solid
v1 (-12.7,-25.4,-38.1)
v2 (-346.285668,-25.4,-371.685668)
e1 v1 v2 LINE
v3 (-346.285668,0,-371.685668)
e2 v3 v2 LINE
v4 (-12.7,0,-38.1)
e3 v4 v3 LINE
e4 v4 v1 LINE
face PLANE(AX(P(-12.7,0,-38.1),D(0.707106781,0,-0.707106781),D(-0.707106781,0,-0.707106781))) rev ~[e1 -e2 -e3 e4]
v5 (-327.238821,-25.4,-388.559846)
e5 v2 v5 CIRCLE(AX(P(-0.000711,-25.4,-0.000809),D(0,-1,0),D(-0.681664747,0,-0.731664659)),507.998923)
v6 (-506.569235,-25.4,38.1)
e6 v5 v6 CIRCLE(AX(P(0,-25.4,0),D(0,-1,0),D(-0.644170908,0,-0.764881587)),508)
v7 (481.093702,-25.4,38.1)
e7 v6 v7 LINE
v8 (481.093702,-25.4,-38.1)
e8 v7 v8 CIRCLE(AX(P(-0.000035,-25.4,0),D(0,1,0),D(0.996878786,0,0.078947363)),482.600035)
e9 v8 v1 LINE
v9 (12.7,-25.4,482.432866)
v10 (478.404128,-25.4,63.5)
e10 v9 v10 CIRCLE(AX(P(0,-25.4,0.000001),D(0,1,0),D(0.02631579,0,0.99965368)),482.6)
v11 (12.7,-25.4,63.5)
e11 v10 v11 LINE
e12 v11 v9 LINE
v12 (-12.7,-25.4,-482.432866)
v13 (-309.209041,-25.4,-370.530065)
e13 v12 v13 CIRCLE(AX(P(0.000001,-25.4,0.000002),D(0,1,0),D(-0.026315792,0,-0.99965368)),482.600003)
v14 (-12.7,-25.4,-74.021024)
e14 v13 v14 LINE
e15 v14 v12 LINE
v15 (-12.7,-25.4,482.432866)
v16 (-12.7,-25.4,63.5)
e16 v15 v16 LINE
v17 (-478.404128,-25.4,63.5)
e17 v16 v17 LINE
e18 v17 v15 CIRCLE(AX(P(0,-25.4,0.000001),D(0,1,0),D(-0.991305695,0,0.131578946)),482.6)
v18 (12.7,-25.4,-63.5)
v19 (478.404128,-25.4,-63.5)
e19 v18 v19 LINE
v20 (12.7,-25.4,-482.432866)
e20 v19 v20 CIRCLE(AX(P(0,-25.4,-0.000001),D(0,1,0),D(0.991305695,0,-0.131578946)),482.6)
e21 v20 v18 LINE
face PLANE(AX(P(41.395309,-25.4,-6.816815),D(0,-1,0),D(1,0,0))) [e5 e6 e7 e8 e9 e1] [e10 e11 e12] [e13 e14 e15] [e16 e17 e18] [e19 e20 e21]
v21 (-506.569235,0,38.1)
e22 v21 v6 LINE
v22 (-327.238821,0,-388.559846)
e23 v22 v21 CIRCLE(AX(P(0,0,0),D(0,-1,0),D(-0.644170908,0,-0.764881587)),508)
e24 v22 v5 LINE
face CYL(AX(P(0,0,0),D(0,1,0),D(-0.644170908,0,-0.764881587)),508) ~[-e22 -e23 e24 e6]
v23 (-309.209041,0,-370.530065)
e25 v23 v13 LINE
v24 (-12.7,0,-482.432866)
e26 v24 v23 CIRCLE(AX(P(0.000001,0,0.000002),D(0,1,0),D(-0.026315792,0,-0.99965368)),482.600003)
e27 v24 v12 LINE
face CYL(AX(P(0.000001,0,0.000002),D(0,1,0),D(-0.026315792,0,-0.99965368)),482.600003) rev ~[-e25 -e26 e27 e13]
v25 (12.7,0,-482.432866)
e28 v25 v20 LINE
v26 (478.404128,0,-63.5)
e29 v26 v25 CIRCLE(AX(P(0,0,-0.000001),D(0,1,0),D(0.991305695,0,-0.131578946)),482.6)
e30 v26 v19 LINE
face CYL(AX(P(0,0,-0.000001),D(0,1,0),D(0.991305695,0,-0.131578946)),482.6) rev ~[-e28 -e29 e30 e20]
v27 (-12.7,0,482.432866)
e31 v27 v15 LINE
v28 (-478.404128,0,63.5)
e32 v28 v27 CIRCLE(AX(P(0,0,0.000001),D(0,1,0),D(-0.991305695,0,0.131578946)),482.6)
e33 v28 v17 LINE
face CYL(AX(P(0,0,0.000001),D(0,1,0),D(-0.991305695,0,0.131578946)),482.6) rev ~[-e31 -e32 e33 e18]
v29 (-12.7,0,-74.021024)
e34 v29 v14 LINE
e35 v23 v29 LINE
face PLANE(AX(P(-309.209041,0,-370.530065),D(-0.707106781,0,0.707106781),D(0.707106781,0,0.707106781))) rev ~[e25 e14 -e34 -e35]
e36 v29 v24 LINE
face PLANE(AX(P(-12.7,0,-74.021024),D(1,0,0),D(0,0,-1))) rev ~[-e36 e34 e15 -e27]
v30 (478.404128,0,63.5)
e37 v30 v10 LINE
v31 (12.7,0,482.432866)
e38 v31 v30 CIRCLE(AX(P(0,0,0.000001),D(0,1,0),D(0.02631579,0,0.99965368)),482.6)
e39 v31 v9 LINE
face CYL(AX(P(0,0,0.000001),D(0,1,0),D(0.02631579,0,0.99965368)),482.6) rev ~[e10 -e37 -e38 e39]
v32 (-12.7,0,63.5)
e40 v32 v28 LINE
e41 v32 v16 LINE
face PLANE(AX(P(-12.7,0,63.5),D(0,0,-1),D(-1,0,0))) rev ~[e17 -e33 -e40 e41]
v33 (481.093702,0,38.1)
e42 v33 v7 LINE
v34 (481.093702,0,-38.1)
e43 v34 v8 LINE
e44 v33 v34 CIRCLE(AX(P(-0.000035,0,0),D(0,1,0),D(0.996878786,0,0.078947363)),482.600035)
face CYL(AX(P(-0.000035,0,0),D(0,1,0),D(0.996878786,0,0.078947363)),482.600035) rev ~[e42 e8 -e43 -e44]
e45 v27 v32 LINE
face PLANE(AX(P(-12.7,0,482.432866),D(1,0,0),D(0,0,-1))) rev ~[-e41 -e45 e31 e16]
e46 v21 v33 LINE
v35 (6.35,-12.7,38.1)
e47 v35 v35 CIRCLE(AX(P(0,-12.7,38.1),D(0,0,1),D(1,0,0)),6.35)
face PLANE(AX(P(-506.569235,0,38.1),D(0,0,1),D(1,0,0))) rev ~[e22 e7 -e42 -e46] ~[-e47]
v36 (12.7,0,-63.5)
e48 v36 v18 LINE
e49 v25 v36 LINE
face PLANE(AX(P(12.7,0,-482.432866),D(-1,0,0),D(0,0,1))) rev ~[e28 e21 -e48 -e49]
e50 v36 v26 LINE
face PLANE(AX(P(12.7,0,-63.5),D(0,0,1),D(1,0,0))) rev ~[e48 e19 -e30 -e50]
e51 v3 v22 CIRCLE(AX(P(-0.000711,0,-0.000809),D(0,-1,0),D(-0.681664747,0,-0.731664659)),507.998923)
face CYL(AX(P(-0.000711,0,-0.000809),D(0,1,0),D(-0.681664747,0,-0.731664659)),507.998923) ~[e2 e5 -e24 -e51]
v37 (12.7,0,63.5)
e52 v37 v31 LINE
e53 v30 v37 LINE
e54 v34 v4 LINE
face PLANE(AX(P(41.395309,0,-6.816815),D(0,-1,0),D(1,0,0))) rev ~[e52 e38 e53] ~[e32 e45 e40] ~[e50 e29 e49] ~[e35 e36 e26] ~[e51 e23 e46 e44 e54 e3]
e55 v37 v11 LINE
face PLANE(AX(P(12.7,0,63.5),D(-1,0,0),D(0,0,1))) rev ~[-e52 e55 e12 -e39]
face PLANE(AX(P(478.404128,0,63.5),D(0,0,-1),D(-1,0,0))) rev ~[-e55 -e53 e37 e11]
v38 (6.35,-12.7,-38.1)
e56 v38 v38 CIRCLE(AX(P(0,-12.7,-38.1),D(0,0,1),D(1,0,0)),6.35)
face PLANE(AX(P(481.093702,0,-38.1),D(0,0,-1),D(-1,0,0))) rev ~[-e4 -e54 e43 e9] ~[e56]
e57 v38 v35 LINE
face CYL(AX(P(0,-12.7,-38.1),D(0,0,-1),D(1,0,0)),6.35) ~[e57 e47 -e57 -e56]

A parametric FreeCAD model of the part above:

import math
import FreeCAD as App
import Part
import Sketcher
from FreeCAD import Vector
Q = App.Units.Quantity

doc = App.newDocument("Part")
body = doc.addObject("PartDesign::Body", "Body")

sketch1 = body.newObject("Sketcher::SketchObject", "Sketch")
sketch1.AttachmentSupport = (doc.getObject("XZ_Plane"), [""])
sketch1.MapMode = "FlatFace"
sketch1.addGeometry([
    Part.LineSegment(Vector(-12.7, -38.1, 0), Vector(-346.285668, -371.685668, 0)),
    Part.ArcOfCircle(Part.Circle(Vector(-0.000711, -0.000809, 0), Vector(0, 0, 1), 507.998923), math.radians(-132.97387), math.radians(-130.103539)),
    Part.ArcOfCircle(Part.Circle(Vector(0, 0, 0), Vector(0, 0, 1), 508), math.radians(-130.103541), math.radians(175.698778)),
    Part.LineSegment(Vector(-506.569235, 38.1, 0), Vector(481.093702, 38.1, 0)),
    Part.ArcOfCircle(Part.Circle(Vector(-0.000035, 0, 0), Vector(0, 0, 1), 482.600035), math.radians(-4.528063), math.radians(4.528063)),
    Part.LineSegment(Vector(481.093702, -38.1, 0), Vector(-12.7, -38.1, 0)),
    Part.ArcOfCircle(Part.Circle(Vector(0.000001, 0.000002, 0), Vector(0, 0, 1), 482.600003), math.radians(-129.845153), math.radians(-91.507958)),
    Part.LineSegment(Vector(-309.209041, -370.530065, 0), Vector(-12.7, -74.021024, 0)),
    Part.LineSegment(Vector(-12.7, -74.021024, 0), Vector(-12.7, -482.432866, 0)),
    Part.LineSegment(Vector(12.7, -63.5, 0), Vector(478.404128, -63.5, 0)),
    Part.ArcOfCircle(Part.Circle(Vector(0, -0.000001, 0), Vector(0, 0, 1), 482.6), math.radians(-88.492042), math.radians(-7.560843)),
    Part.LineSegment(Vector(12.7, -482.432866, 0), Vector(12.7, -63.5, 0)),
    Part.LineSegment(Vector(-12.7, 63.5, 0), Vector(-478.404128, 63.5, 0)),
    Part.ArcOfCircle(Part.Circle(Vector(0, 0.000001, 0), Vector(0, 0, 1), 482.6), math.radians(91.507958), math.radians(172.439157)),
    Part.LineSegment(Vector(-12.7, 482.432866, 0), Vector(-12.7, 63.5, 0)),
    Part.LineSegment(Vector(478.404128, 63.5, 0), Vector(12.7, 63.5, 0)),
    Part.LineSegment(Vector(12.7, 63.5, 0), Vector(12.7, 482.432866, 0)),
    Part.ArcOfCircle(Part.Circle(Vector(0, 0.000001, 0), Vector(0, 0, 1), 482.6), math.radians(7.560843), math.radians(88.492042)),
], False)
sketch1.addConstraint([
    Sketcher.Constraint("Coincident", 0, 2, 1, 1),
    Sketcher.Constraint("Coincident", 1, 2, 2, 1),
    Sketcher.Constraint("Coincident", 2, 2, 3, 1),
    Sketcher.Constraint("Coincident", 3, 2, 4, 2),
    Sketcher.Constraint("Coincident", 4, 1, 5, 1),
    Sketcher.Constraint("Coincident", 5, 2, 0, 1),
    Sketcher.Constraint("Coincident", 6, 1, 7, 1),
    Sketcher.Constraint("Coincident", 7, 2, 8, 1),
    Sketcher.Constraint("Coincident", 8, 2, 6, 2),
    Sketcher.Constraint("Coincident", 9, 2, 10, 2),
    Sketcher.Constraint("Coincident", 10, 1, 11, 1),
    Sketcher.Constraint("Coincident", 11, 2, 9, 1),
    Sketcher.Constraint("Coincident", 12, 2, 13, 2),
    Sketcher.Constraint("Coincident", 13, 1, 14, 1),
    Sketcher.Constraint("Coincident", 14, 2, 12, 1),
    Sketcher.Constraint("Coincident", 15, 2, 16, 1),
    Sketcher.Constraint("Coincident", 16, 2, 17, 2),
    Sketcher.Constraint("Coincident", 17, 1, 15, 1),
    Sketcher.Constraint("Horizontal", 3),
    Sketcher.Constraint("Horizontal", 5),
    Sketcher.Constraint("Vertical", 8),
    Sketcher.Constraint("Horizontal", 9),
    Sketcher.Constraint("Vertical", 11),
    Sketcher.Constraint("Horizontal", 12),
    Sketcher.Constraint("Vertical", 14),
    Sketcher.Constraint("Horizontal", 15),
    Sketcher.Constraint("Vertical", 16),
    Sketcher.Constraint("Coincident", 2, 3, -1, 1),
    Sketcher.Constraint("Coincident", 6, 3, -1, 1),
    Sketcher.Constraint("Coincident", 10, 3, -1, 1),
    Sketcher.Constraint("Coincident", 13, 3, -1, 1),
    Sketcher.Constraint("Coincident", 17, 3, -1, 1),
    Sketcher.Constraint("PointOnObject", 4, 3, -1),
    Sketcher.Constraint("Radius", 2, Q("20 in")),
    Sketcher.Constraint("Radius", 6, Q("19.0000001 in")),
    Sketcher.Constraint("Radius", 10, Q("19 in")),
    Sketcher.Constraint("Radius", 13, Q("19 in")),
    Sketcher.Constraint("Radius", 17, Q("19 in")),
    Sketcher.Constraint("DistanceY", 9, 2, 3, 2, Q("4 in")),
    Sketcher.Constraint("DistanceX", 7, 2, 11, 2, Q("1 in")),
    Sketcher.Constraint("DistanceX", 5, 2, 11, 2, Q("1 in")),
    Sketcher.Constraint("DistanceY", 11, 2, 5, 2, Q("1 in")),
    Sketcher.Constraint("DistanceY", 5, 2, 12, 2, Q("4 in")),
    Sketcher.Constraint("DistanceX", 14, 2, 15, 2, Q("1 in")),
    Sketcher.Constraint("DistanceY", -1, 1, 3, 2, Q("1.5 in")),
    Sketcher.Constraint("DistanceX", 5, 2, -1, 1, Q("0.5 in")),
    Sketcher.Constraint("DistanceX", 14, 2, -1, 1, Q("0.5 in")),
    Sketcher.Constraint("DistanceY", -1, 1, 15, 2, Q("2.5 in")),
    Sketcher.Constraint("DistanceX", 5, 2, 5, 1, 493.793702),
    Sketcher.Constraint("Radius", 1, 507.998923),
    Sketcher.Constraint("Radius", 4, 482.600035),
    Sketcher.Constraint("DistanceY", 1, 2, 1, 3, Q("15.2975999 in")),
    Sketcher.Constraint("DistanceY", 8, 2, 8, 1, 408.411842),
    Sketcher.Constraint("DistanceY", 8, 2, 6, 1, 111.902801),
    Sketcher.Constraint("DistanceY", 10, 1, 0, 2, 110.747198),
    Sketcher.Constraint("DistanceX", 1, 3, -1, 1, 0.000711),
])
pad1 = body.newObject("PartDesign::Pad", "Pad")
pad1.Profile = sketch1
pad1.Length = Q("1 in")

sketch2 = body.newObject("Sketcher::SketchObject", "Sketch001")
sketch2.AttachmentSupport = (doc.getObject("XY_Plane"), [""])
sketch2.MapMode = "FlatFace"
sketch2.AttachmentOffset = App.Placement(Vector(0, 0, -1.5 * 25.4), App.Rotation())
sketch2.addGeometry(Part.Circle(Vector(0, -13, 0), Vector(0, 0, 1), 6), False)
sketch2.addConstraint([
    Sketcher.Constraint("PointOnObject", 0, 3, -2),
    Sketcher.Constraint("Diameter", 0, Q("0.5 in")),
    Sketcher.Constraint("DistanceY", 0, 3, -1, 1, Q("0.5 in")),
])
pad2 = body.newObject("PartDesign::Pad", "Pad001")
pad2.Profile = sketch2
pad2.Type = "UpToLast"

doc.recompute()
